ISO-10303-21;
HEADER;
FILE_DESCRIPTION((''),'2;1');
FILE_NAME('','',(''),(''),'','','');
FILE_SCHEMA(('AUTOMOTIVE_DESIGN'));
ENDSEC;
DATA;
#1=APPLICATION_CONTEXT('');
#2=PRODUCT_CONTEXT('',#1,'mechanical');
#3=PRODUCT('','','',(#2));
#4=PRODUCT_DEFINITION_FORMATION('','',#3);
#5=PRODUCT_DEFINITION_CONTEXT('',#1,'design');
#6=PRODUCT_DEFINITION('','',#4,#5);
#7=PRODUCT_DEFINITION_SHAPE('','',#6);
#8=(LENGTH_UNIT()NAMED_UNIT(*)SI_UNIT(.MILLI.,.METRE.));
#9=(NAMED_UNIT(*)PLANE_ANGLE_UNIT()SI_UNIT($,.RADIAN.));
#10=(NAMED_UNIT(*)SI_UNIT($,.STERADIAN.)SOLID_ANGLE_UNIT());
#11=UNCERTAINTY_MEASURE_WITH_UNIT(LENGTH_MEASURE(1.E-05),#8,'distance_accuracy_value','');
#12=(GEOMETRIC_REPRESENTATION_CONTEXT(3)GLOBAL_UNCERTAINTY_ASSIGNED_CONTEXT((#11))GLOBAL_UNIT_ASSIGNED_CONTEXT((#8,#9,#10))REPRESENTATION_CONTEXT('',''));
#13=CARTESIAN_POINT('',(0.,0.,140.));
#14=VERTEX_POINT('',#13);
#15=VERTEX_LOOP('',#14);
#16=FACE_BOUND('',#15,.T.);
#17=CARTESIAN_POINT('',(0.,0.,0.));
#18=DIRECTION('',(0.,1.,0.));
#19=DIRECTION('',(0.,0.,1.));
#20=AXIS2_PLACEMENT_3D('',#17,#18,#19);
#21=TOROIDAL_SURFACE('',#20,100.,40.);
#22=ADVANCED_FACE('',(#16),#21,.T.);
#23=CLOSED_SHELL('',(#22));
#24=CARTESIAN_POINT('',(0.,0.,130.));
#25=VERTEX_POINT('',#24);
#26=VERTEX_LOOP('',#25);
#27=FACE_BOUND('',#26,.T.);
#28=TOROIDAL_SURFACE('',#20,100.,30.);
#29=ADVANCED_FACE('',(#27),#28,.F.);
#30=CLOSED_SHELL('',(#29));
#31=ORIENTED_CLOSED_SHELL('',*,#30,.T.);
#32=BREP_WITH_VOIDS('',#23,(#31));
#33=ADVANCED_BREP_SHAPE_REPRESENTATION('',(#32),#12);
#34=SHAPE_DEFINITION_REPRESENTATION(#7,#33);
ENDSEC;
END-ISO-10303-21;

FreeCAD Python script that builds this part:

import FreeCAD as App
import Part
import Sketcher
Q = App.Units.Quantity

doc = App.newDocument("Part")
body = doc.addObject("PartDesign::Body", "Body")

# Sketch on XY plane
sketch1 = doc.addObject("Sketcher::SketchObject", "Sketch")
body.addObject(sketch1)
sketch1.AttachmentSupport = (doc.XY_Plane, [""])
sketch1.MapMode = "FlatFace"
sketch1.addGeometry(Part.Circle(App.Vector(-100, 0, 0), App.Vector(0, 0, 1), 40), False)
sketch1.addGeometry(Part.Circle(App.Vector(-100, 0, 0), App.Vector(0, 0, 1), 30), False)
sketch1.addConstraint(Sketcher.Constraint("Coincident", 1, 3, 0, 3))
sketch1.addConstraint(Sketcher.Constraint("PointOnObject", 0, 3, -1))
sketch1.addConstraint(Sketcher.Constraint("Diameter", 0, Q("80 mm")))
sketch1.addConstraint(Sketcher.Constraint("Diameter", 1, Q("60 mm")))
sketch1.addConstraint(Sketcher.Constraint("DistanceX", 0, 3, -1, 1, Q("100 mm")))
revolution = doc.addObject("PartDesign::Revolution", "Revolution")
body.addObject(revolution)
revolution.Profile = sketch1
revolution.ReferenceAxis = (sketch1, ["V_Axis"])
revolution.Angle = 360

doc.recompute()
